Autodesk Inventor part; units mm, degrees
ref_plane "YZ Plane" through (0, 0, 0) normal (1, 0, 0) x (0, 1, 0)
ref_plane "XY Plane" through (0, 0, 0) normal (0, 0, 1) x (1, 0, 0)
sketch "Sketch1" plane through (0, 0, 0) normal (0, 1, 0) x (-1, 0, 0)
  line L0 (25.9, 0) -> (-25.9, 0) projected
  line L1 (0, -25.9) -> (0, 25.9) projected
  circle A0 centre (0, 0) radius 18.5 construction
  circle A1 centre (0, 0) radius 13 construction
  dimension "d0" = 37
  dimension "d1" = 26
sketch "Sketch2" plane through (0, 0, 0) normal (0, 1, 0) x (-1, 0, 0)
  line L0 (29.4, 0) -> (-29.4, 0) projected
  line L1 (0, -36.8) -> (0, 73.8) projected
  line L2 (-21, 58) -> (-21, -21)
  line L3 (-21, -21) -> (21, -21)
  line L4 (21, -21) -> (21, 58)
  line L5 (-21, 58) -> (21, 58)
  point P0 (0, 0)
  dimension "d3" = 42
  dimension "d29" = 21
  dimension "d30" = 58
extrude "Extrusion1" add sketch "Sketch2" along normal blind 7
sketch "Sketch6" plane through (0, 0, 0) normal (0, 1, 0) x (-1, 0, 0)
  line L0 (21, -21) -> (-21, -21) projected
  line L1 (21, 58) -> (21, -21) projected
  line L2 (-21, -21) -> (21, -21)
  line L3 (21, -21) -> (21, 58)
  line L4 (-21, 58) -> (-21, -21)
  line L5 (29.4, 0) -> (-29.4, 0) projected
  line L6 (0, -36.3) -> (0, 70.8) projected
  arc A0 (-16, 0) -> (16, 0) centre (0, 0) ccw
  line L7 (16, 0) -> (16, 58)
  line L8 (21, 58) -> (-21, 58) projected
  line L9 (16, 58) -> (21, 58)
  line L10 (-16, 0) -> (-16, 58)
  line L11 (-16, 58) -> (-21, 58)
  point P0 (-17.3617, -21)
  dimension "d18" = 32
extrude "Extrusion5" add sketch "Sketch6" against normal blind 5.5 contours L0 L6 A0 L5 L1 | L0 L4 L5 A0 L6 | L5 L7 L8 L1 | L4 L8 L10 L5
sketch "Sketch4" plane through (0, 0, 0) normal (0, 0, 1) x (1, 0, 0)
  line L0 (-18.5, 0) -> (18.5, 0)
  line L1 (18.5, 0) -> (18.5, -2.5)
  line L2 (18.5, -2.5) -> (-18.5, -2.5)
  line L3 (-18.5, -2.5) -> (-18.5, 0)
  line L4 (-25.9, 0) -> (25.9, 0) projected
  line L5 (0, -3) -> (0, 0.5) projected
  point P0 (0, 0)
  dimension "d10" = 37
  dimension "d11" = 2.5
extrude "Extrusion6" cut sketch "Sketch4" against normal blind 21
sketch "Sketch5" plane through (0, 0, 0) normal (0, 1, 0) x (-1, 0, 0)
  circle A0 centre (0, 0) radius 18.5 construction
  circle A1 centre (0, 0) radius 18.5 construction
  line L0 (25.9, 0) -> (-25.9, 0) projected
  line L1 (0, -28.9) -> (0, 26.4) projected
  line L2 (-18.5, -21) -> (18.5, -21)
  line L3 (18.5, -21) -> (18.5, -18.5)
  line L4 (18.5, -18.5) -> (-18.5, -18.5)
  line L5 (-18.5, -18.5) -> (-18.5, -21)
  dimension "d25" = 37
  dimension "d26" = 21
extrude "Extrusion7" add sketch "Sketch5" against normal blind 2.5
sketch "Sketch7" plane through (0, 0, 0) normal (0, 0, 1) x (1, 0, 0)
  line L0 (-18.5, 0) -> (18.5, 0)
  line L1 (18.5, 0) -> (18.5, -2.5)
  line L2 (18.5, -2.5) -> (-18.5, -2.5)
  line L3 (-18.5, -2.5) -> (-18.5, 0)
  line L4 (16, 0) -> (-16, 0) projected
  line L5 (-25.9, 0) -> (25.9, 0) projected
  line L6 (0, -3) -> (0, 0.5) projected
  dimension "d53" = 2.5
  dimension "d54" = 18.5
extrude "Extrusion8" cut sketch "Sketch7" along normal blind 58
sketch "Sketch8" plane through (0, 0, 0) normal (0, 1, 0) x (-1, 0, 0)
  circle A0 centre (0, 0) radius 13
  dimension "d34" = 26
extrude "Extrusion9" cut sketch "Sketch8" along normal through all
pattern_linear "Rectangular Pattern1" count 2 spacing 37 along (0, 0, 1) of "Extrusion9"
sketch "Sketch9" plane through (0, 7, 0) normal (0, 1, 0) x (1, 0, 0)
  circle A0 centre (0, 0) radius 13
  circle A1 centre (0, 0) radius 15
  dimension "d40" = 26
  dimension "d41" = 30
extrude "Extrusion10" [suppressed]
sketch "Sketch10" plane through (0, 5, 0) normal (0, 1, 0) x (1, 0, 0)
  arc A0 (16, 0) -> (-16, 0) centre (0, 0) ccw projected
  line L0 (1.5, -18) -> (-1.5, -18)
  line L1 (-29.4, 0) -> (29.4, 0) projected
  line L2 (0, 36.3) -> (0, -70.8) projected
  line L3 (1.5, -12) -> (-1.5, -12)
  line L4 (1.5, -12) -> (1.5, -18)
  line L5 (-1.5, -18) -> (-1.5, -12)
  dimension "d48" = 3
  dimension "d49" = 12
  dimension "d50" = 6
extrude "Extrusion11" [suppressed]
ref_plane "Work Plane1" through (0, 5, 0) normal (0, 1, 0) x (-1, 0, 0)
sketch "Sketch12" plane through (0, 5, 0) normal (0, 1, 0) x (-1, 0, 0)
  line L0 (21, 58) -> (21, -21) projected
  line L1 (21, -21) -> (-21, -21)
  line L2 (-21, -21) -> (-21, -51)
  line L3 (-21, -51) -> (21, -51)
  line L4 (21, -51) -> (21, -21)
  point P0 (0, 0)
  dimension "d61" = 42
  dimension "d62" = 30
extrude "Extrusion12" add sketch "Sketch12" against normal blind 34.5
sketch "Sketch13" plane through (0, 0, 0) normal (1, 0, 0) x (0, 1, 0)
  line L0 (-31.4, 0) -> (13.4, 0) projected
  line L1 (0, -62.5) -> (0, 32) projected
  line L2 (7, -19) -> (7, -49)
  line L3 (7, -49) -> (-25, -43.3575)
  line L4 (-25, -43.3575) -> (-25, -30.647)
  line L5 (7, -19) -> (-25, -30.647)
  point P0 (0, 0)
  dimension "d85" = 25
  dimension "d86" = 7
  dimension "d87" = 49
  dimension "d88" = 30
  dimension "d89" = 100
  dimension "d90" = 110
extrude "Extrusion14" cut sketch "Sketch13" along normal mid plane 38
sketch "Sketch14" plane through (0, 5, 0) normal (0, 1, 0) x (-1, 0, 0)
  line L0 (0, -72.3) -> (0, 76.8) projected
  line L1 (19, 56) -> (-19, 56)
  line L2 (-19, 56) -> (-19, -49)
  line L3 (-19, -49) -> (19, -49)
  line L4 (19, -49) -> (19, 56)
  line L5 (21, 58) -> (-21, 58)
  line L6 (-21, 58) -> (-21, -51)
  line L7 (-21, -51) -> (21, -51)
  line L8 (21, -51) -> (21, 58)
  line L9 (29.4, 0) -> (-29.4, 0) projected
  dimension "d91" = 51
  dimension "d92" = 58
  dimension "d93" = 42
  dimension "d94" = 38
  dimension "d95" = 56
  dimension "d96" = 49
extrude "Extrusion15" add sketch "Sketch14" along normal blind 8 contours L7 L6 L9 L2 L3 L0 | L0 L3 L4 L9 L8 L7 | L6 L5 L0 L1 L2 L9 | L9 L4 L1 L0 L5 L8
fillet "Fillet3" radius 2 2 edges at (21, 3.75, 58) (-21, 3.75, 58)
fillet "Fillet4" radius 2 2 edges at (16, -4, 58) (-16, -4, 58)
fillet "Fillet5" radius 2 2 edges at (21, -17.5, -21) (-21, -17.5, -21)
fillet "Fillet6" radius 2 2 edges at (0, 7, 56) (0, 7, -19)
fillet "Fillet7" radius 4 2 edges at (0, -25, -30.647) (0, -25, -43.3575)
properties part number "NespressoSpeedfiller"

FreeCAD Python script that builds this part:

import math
import FreeCAD as App
import Part
import Sketcher
Q = App.Units.Quantity


def edges_at(feature, points):
    """Names of the edges that pass closest to the given points."""
    edges = feature.Shape.Edges
    near = lambda p: min(range(len(edges)), key=lambda i: edges[i].distToShape(Part.Vertex(*p))[0])
    return sorted({f"Edge{near(p) + 1}" for p in points})


def add_polygon(sketch, points):
    """Adds a closed chain of lines whose ends are joined by coincident constraints."""
    first, n = sketch.GeometryCount, len(points)
    for a, b in zip(points, points[1:] + points[:1]):
        sketch.addGeometry(Part.LineSegment(App.Vector(*a, 0), App.Vector(*b, 0)), False)
    for i in range(n):
        sketch.addConstraint(Sketcher.Constraint("Coincident", first + i, 2, first + (i + 1) % n, 1))

doc = App.newDocument("Part")
body = doc.addObject("PartDesign::Body", "Body")

# Sketch on XZ plane
sketch1 = doc.addObject("Sketcher::SketchObject", "Sketch")
body.addObject(sketch1)
sketch1.AttachmentSupport = (doc.XZ_Plane, [""])
sketch1.MapMode = "FlatFace"
add_polygon(sketch1, [(-21, -21), (-21, 58), (21, 58), (21, -21)])  # lines 0-3
sketch1.addConstraint([
    Sketcher.Constraint("Vertical", 0),
    Sketcher.Constraint("Horizontal", 1),
    Sketcher.Constraint("Vertical", 2),
    Sketcher.Constraint("Horizontal", 3),
    Sketcher.Constraint("DistanceX", 1, 1, 1, 2, Q("42 mm")),
    Sketcher.Constraint("DistanceX", 0, 2, -1, 1, Q("21 mm")),
    Sketcher.Constraint("DistanceY", -1, 1, 0, 2, Q("58 mm")),
    Sketcher.Constraint("DistanceY", 2, 2, -1, 1, Q("21 mm")),
])
pad1 = doc.addObject("PartDesign::Pad", "Pad")
body.addObject(pad1)
pad1.Profile = sketch1
pad1.Length = 7
pad1.Reversed = True

# Sketch on XZ plane
sketch2 = doc.addObject("Sketcher::SketchObject", "Sketch001")
body.addObject(sketch2)
sketch2.AttachmentSupport = (doc.XZ_Plane, [""])
sketch2.MapMode = "FlatFace"
sketch2.addGeometry([
    Part.LineSegment(App.Vector(-21, -21, 0), App.Vector(-21, 58, 0)),  # 0
    Part.LineSegment(App.Vector(-21, 58, 0), App.Vector(-16, 58, 0)),  # 1
    Part.LineSegment(App.Vector(-16, 58, 0), App.Vector(-16, 0, 0)),  # 2
    Part.ArcOfCircle(Part.Circle(App.Vector(0, 0, 0), App.Vector(0, 0, 1), 16), math.radians(180), math.radians(360)),  # 3
    Part.LineSegment(App.Vector(16, 0, 0), App.Vector(16, 58, 0)),  # 4
    Part.LineSegment(App.Vector(16, 58, 0), App.Vector(21, 58, 0)),  # 5
    Part.LineSegment(App.Vector(21, 58, 0), App.Vector(21, -21, 0)),  # 6
    Part.LineSegment(App.Vector(21, -21, 0), App.Vector(-21, -21, 0)),  # 7
], False)
sketch2.addConstraint([
    Sketcher.Constraint("Coincident", 0, 2, 1, 1),
    Sketcher.Constraint("Coincident", 1, 2, 2, 1),
    Sketcher.Constraint("Tangent", 2, 2, 3, 1),
    Sketcher.Constraint("Tangent", 3, 2, 4, 1),
    Sketcher.Constraint("Coincident", 4, 2, 5, 1),
    Sketcher.Constraint("Coincident", 5, 2, 6, 1),
    Sketcher.Constraint("Coincident", 6, 2, 7, 1),
    Sketcher.Constraint("Coincident", 7, 2, 0, 1),
    Sketcher.Constraint("Vertical", 0),
    Sketcher.Constraint("Horizontal", 1),
    Sketcher.Constraint("Vertical", 2),
    Sketcher.Constraint("Vertical", 4),
    Sketcher.Constraint("Horizontal", 5),
    Sketcher.Constraint("Vertical", 6),
    Sketcher.Constraint("Horizontal", 7),
    Sketcher.Constraint("Coincident", 3, 3, -1, 1),
    Sketcher.Constraint("Symmetric", 0, 2, 5, 2, -2),
    Sketcher.Constraint("Radius", 3, Q("16 mm")),
    Sketcher.Constraint("DistanceX", 1, 1, 1, 2, Q("5 mm")),
    Sketcher.Constraint("DistanceY", 0, 1, 0, 2, Q("79 mm")),
    Sketcher.Constraint("DistanceY", 2, 2, 2, 1, Q("58 mm")),
])
pad2 = doc.addObject("PartDesign::Pad", "Pad001")
body.addObject(pad2)
pad2.Profile = sketch2
pad2.Length = 5.5

# Sketch on XY plane
sketch3 = doc.addObject("Sketcher::SketchObject", "Sketch002")
body.addObject(sketch3)
sketch3.AttachmentSupport = (doc.XY_Plane, [""])
sketch3.MapMode = "FlatFace"
add_polygon(sketch3, [(-18.5, 0), (-18.5, -2.5), (18.5, -2.5), (18.5, 0)])  # lines 0-3
sketch3.addConstraint([
    Sketcher.Constraint("Vertical", 0),
    Sketcher.Constraint("Horizontal", 1),
    Sketcher.Constraint("Vertical", 2),
    Sketcher.Constraint("Horizontal", 3),
    Sketcher.Constraint("Symmetric", 2, 2, 3, 2, -1, 1),
    Sketcher.Constraint("DistanceX", 1, 1, 1, 2, Q("37 mm")),
    Sketcher.Constraint("DistanceY", 0, 2, 0, 1, Q("2.5 mm")),
])
pocket1 = doc.addObject("PartDesign::Pocket", "Pocket")
body.addObject(pocket1)
pocket1.Profile = sketch3
pocket1.Length = 21

# Sketch on XZ plane
sketch4 = doc.addObject("Sketcher::SketchObject", "Sketch003")
body.addObject(sketch4)
sketch4.AttachmentSupport = (doc.XZ_Plane, [""])
sketch4.MapMode = "FlatFace"
add_polygon(sketch4, [(18.5, -21), (-18.5, -21), (-18.5, -18.5), (18.5, -18.5)])  # lines 0-3
sketch4.addConstraint([
    Sketcher.Constraint("Horizontal", 0),
    Sketcher.Constraint("Vertical", 1),
    Sketcher.Constraint("Horizontal", 2),
    Sketcher.Constraint("Vertical", 3),
    Sketcher.Constraint("DistanceX", 0, 2, 0, 1, Q("37 mm")),
    Sketcher.Constraint("DistanceY", 0, 2, -1, 1, Q("21 mm")),
    Sketcher.Constraint("DistanceY", 1, 1, 1, 2, Q("2.5 mm")),
    Sketcher.Constraint("DistanceX", 0, 2, -1, 1, Q("18.5 mm")),
])
pad3 = doc.addObject("PartDesign::Pad", "Pad002")
body.addObject(pad3)
pad3.Profile = sketch4
pad3.Length = 2.5

# Sketch on XY plane
sketch5 = doc.addObject("Sketcher::SketchObject", "Sketch004")
body.addObject(sketch5)
sketch5.AttachmentSupport = (doc.XY_Plane, [""])
sketch5.MapMode = "FlatFace"
add_polygon(sketch5, [(-18.5, 0), (-18.5, -2.5), (18.5, -2.5), (18.5, 0)])  # lines 0-3
sketch5.addConstraint([
    Sketcher.Constraint("Vertical", 0),
    Sketcher.Constraint("Horizontal", 1),
    Sketcher.Constraint("Vertical", 2),
    Sketcher.Constraint("Horizontal", 3),
    Sketcher.Constraint("Symmetric", 2, 2, 3, 2, -1, 1),
    Sketcher.Constraint("DistanceY", 0, 2, 0, 1, Q("2.5 mm")),
    Sketcher.Constraint("DistanceX", 0, 2, -1, 1, Q("18.5 mm")),
])
pocket2 = doc.addObject("PartDesign::Pocket", "Pocket001")
body.addObject(pocket2)
pocket2.Profile = sketch5
pocket2.Length = 58
pocket2.Reversed = True

# Sketch on XZ plane
sketch6 = doc.addObject("Sketcher::SketchObject", "Sketch005")
body.addObject(sketch6)
sketch6.AttachmentSupport = (doc.XZ_Plane, [""])
sketch6.MapMode = "FlatFace"
sketch6.addGeometry(Part.Circle(App.Vector(0, 0, 0), App.Vector(0, 0, 1), 13), False)
sketch6.addConstraint([
    Sketcher.Constraint("Coincident", 0, 3, -1, 1),
    Sketcher.Constraint("Diameter", 0, Q("26 mm")),
])
pocket3 = doc.addObject("PartDesign::Pocket", "Pocket002")
body.addObject(pocket3)
pocket3.Profile = sketch6
pocket3.Type = "ThroughAll"
doc.recompute()

linearpattern = doc.addObject("PartDesign::LinearPattern", "LinearPattern")
body.addObject(linearpattern)
linearpattern.Originals = [pocket3]
linearpattern.Direction = (doc.Z_Axis, [""])
linearpattern.Mode = "offset"
linearpattern.Offset = 37
linearpattern.Occurrences = 2
body.Tip = linearpattern

# Sketch on XZ plane
sketch7 = doc.addObject("Sketcher::SketchObject", "Sketch006")
body.addObject(sketch7)
sketch7.AttachmentSupport = (doc.XZ_Plane, [""])
sketch7.MapMode = "FlatFace"
sketch7.AttachmentOffset = App.Placement(App.Vector(0, 0, -5), App.Rotation())
add_polygon(sketch7, [(-21, -51), (-21, -21), (21, -21), (21, -51)])  # lines 0-3
sketch7.addConstraint([
    Sketcher.Constraint("Vertical", 0),
    Sketcher.Constraint("Horizontal", 1),
    Sketcher.Constraint("Vertical", 2),
    Sketcher.Constraint("Horizontal", 3),
    Sketcher.Constraint("DistanceX", 1, 1, 1, 2, Q("42 mm")),
    Sketcher.Constraint("DistanceY", 0, 1, 0, 2, Q("30 mm")),
    Sketcher.Constraint("DistanceX", 0, 2, -1, 1, Q("21 mm")),
    Sketcher.Constraint("DistanceY", 0, 2, -1, 1, Q("21 mm")),
])
pad4 = doc.addObject("PartDesign::Pad", "Pad003")
body.addObject(pad4)
pad4.Profile = sketch7
pad4.Length = 34.5

# Sketch on YZ plane
sketch8 = doc.addObject("Sketcher::SketchObject", "Sketch007")
body.addObject(sketch8)
sketch8.AttachmentSupport = (doc.YZ_Plane, [""])
sketch8.MapMode = "FlatFace"
add_polygon(sketch8, [(-25, -43.3575), (7, -49), (7, -19), (-25, -30.647)])  # lines 0-3
sketch8.addConstraint([
    Sketcher.Constraint("Vertical", 1),
    Sketcher.Constraint("Vertical", 3),
    Sketcher.Constraint("DistanceY", 1, 1, 1, 2, Q("30 mm")),
    Sketcher.Constraint("DistanceX", -1, 1, 0, 2, Q("7 mm")),
    Sketcher.Constraint("DistanceY", 0, 2, -1, 1, Q("49 mm")),
    Sketcher.Constraint("DistanceX", 2, 2, -1, 1, Q("25 mm")),
    Sketcher.Constraint("Angle", 0, Q("-10 deg")),
    Sketcher.Constraint("Angle", 2, Q("-160 deg")),
])
pocket4 = doc.addObject("PartDesign::Pocket", "Pocket003")
body.addObject(pocket4)
pocket4.Profile = sketch8
pocket4.Length = 38
pocket4.Midplane = True

# Sketch on XZ plane
sketch9 = doc.addObject("Sketcher::SketchObject", "Sketch008")
body.addObject(sketch9)
sketch9.AttachmentSupport = (doc.XZ_Plane, [""])
sketch9.MapMode = "FlatFace"
sketch9.AttachmentOffset = App.Placement(App.Vector(0, 0, -5), App.Rotation())
add_polygon(sketch9, [(21, -51), (-21, -51), (-21, 58), (21, 58)])  # lines 0-3
add_polygon(sketch9, [(19, -49), (19, 56), (-19, 56), (-19, -49)])  # lines 4-7
sketch9.addConstraint([
    Sketcher.Constraint("Horizontal", 0),
    Sketcher.Constraint("Vertical", 1),
    Sketcher.Constraint("Horizontal", 2),
    Sketcher.Constraint("Vertical", 3),
    Sketcher.Constraint("Vertical", 4),
    Sketcher.Constraint("Horizontal", 5),
    Sketcher.Constraint("Vertical", 6),
    Sketcher.Constraint("Horizontal", 7),
    Sketcher.Constraint("DistanceX", 0, 2, 0, 1, Q("42 mm")),
    Sketcher.Constraint("DistanceX", 5, 2, 5, 1, Q("38 mm")),
    Sketcher.Constraint("DistanceY", 0, 2, -1, 1, Q("51 mm")),
    Sketcher.Constraint("DistanceY", -1, 1, 1, 2, Q("58 mm")),
    Sketcher.Constraint("DistanceY", -1, 1, 4, 2, Q("56 mm")),
    Sketcher.Constraint("DistanceY", 6, 2, -1, 1, Q("49 mm")),
    Sketcher.Constraint("DistanceX", 0, 2, -1, 1, Q("21 mm")),
    Sketcher.Constraint("DistanceX", -1, 1, 4, 2, Q("19 mm")),
])
pad5 = doc.addObject("PartDesign::Pad", "Pad004")
body.addObject(pad5)
pad5.Profile = sketch9
pad5.Length = 8
pad5.Reversed = True
doc.recompute()

fillet = doc.addObject("PartDesign::Fillet", "Fillet")
body.addObject(fillet)
fillet.Base = (pad5, edges_at(pad5, [(21, 3.75, 58), (-21, 3.75, 58)]))
fillet.Radius = 2
doc.recompute()

fillet2 = doc.addObject("PartDesign::Fillet", "Fillet001")
body.addObject(fillet2)
fillet2.Base = (fillet, edges_at(fillet, [(16, -4, 58), (-16, -4, 58)]))
fillet2.Radius = 2
doc.recompute()

fillet3 = doc.addObject("PartDesign::Fillet", "Fillet002")
body.addObject(fillet3)
fillet3.Base = (fillet2, edges_at(fillet2, [(21, -17.5, -21), (-21, -17.5, -21)]))
fillet3.Radius = 2
doc.recompute()

fillet4 = doc.addObject("PartDesign::Fillet", "Fillet003")
body.addObject(fillet4)
fillet4.Base = (fillet3, edges_at(fillet3, [(0, 7, 56), (0, 7, -19)]))
fillet4.Radius = 2
doc.recompute()

fillet5 = doc.addObject("PartDesign::Fillet", "Fillet004")
body.addObject(fillet5)
fillet5.Base = (fillet4, edges_at(fillet4, [(0, -25, -30.647), (0, -25, -43.358)]))
fillet5.Radius = 4

doc.recompute()
